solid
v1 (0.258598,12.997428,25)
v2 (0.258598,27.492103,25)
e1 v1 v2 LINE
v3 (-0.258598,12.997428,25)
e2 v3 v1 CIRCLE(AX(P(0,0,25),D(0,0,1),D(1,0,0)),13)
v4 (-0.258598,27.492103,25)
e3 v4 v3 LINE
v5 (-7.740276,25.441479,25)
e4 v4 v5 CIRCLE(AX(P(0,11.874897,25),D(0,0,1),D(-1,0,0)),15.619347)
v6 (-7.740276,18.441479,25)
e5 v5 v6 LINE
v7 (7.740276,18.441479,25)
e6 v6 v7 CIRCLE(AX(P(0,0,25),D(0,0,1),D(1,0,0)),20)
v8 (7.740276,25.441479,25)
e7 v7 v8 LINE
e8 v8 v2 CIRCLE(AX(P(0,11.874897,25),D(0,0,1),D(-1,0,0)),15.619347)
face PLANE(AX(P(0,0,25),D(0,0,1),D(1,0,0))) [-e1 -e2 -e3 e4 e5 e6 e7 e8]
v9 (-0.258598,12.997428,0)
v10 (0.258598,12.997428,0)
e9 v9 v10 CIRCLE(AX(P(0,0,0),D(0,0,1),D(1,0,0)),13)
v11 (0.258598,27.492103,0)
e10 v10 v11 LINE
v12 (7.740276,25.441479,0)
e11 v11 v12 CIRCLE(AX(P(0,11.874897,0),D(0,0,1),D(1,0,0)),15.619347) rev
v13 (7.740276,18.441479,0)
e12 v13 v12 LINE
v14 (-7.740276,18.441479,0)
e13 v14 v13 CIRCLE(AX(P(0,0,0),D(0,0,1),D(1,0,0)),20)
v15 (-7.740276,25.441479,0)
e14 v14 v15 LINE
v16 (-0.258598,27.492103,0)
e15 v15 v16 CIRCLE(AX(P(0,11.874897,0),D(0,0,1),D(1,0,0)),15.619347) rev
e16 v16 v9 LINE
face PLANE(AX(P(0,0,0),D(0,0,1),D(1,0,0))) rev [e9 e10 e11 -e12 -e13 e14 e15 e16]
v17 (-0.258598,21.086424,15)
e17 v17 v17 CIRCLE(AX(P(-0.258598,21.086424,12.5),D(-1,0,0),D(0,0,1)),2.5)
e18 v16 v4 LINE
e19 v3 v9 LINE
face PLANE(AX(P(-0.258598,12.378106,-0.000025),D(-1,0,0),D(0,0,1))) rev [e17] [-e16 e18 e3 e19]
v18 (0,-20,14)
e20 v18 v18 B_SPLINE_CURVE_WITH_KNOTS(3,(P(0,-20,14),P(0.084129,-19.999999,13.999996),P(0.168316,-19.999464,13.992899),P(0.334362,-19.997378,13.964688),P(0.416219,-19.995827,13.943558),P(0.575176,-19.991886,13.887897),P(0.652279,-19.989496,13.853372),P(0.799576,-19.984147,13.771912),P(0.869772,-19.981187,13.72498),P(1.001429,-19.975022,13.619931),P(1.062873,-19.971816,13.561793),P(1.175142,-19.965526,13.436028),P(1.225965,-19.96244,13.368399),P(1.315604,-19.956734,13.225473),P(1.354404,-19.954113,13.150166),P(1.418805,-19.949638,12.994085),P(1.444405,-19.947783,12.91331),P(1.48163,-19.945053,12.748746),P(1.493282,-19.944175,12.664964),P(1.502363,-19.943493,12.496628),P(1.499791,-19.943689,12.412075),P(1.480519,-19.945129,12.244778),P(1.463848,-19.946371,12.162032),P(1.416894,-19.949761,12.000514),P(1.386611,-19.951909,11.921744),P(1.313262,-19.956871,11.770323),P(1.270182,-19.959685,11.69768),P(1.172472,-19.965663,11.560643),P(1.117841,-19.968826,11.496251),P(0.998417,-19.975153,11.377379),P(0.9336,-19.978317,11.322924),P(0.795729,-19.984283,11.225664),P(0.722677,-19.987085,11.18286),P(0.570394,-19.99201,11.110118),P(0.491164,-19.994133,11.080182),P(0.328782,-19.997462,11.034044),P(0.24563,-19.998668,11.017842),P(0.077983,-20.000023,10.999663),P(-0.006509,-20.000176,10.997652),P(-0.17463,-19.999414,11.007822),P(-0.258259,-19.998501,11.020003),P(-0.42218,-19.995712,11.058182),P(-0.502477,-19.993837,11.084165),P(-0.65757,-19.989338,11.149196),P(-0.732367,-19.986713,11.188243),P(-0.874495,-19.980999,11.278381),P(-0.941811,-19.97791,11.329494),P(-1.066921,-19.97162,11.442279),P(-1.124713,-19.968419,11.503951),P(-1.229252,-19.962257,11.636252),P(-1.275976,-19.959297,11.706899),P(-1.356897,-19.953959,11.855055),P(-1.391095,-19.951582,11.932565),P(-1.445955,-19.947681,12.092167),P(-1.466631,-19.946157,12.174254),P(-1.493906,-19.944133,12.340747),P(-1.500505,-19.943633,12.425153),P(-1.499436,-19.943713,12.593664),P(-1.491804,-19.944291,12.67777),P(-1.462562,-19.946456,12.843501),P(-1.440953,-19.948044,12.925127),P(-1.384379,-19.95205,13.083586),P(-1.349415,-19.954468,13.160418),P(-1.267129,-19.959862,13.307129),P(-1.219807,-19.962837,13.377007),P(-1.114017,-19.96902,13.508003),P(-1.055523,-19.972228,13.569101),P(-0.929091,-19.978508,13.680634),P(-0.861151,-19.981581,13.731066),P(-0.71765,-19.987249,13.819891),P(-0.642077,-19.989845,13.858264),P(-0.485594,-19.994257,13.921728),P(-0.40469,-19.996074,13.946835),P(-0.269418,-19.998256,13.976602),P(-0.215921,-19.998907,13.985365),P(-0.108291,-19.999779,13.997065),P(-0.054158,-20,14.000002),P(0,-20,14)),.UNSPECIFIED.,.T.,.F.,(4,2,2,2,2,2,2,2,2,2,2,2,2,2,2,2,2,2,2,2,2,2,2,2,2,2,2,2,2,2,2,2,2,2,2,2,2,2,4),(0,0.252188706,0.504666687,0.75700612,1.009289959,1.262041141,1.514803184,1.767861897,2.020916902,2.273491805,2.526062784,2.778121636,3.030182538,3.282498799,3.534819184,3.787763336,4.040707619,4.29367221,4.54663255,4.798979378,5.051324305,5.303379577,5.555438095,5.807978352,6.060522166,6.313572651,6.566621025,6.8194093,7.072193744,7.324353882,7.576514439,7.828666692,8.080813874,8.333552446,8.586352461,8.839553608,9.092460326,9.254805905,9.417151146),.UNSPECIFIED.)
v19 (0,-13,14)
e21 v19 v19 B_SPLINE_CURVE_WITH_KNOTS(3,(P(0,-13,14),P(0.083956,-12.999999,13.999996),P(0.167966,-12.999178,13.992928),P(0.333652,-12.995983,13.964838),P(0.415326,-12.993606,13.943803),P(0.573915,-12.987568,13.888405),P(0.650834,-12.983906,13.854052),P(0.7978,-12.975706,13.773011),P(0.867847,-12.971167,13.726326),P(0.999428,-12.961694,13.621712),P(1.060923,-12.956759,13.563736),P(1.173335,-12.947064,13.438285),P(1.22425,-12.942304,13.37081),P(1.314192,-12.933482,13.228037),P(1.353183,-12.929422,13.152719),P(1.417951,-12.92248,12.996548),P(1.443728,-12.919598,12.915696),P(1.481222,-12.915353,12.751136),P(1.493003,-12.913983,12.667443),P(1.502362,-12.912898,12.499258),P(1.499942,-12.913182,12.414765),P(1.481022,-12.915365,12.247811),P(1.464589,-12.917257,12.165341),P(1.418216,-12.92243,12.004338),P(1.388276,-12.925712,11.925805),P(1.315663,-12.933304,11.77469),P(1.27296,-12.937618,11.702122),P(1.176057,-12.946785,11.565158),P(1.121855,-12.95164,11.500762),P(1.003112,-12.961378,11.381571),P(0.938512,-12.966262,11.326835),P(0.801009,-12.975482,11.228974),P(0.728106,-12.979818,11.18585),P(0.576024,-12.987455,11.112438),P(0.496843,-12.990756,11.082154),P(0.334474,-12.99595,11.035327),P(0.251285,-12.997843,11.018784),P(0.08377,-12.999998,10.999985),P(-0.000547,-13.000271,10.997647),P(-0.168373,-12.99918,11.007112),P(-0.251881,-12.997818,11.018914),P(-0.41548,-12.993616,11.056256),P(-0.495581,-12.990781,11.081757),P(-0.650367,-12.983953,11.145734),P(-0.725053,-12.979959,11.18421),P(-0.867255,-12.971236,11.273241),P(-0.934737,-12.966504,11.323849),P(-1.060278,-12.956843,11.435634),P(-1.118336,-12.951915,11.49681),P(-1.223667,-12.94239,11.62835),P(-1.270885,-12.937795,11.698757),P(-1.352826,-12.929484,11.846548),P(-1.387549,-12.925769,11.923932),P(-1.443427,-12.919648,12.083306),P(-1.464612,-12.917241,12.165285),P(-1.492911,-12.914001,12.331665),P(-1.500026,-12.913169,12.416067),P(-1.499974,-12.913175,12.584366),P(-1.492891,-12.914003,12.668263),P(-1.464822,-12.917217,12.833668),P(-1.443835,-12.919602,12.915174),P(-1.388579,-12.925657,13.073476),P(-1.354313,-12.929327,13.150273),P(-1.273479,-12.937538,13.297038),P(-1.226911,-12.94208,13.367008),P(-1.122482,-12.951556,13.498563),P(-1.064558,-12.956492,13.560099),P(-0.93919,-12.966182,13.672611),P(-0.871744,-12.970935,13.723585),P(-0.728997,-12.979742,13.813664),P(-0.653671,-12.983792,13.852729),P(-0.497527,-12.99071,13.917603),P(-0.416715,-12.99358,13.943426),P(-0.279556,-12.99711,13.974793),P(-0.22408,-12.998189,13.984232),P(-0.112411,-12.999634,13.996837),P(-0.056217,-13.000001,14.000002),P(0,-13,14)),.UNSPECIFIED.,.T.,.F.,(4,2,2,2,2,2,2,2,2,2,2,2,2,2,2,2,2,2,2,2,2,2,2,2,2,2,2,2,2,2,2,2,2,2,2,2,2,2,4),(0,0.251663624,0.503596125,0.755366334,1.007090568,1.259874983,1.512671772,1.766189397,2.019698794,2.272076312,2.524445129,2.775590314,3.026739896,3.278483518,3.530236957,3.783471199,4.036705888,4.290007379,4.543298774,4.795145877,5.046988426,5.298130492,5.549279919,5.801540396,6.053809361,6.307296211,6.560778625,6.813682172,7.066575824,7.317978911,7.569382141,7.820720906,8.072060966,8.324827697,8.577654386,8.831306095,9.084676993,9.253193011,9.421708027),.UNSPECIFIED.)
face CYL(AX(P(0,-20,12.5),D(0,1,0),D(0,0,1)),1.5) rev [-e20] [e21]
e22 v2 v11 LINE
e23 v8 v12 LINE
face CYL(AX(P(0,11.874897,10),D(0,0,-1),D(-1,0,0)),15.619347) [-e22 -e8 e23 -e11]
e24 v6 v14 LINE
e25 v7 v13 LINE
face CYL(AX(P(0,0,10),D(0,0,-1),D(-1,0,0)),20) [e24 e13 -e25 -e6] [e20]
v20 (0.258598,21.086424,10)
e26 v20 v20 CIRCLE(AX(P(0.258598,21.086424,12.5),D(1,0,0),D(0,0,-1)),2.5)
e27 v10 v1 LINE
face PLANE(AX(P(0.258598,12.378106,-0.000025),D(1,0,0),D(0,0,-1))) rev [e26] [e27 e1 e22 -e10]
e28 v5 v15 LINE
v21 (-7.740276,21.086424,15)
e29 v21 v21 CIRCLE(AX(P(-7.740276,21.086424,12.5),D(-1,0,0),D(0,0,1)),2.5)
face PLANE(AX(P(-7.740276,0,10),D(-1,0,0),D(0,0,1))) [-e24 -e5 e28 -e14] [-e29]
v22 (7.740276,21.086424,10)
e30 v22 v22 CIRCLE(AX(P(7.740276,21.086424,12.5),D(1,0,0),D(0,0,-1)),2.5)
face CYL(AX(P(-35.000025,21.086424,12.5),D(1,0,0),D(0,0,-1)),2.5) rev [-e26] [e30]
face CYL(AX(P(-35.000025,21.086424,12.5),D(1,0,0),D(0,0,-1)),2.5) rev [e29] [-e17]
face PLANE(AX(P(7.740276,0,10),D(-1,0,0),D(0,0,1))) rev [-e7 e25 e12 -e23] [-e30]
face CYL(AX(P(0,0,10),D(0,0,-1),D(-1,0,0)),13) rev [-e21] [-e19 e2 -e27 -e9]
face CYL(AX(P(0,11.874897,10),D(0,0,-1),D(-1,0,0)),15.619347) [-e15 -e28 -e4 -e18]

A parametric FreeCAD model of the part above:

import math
import FreeCAD as App
import Part
import Sketcher
from FreeCAD import Vector


def add_polygon(sketch, points):
    """Adds a closed chain of lines whose ends are joined by coincident constraints."""
    first, n = sketch.GeometryCount, len(points)
    for a, b in zip(points, points[1:] + points[:1]):
        sketch.addGeometry(Part.LineSegment(App.Vector(*a, 0), App.Vector(*b, 0)), False)
    for i in range(n):
        sketch.addConstraint(Sketcher.Constraint("Coincident", first + i, 2, first + (i + 1) % n, 1))

doc = App.newDocument("Part")
body = doc.addObject("PartDesign::Body", "Body")

# Sketch on XY plane
sketch1 = body.newObject("Sketcher::SketchObject", "Sketch")
sketch1.AttachmentSupport = (doc.getObject("XY_Plane"), [""])
sketch1.MapMode = "FlatFace"
sketch1.addGeometry(Part.LineSegment(Vector(-35, -7, 0), Vector(-7.7, -18.4, 0)), False)
sketch1.addGeometry(Part.ArcOfCircle(Part.Circle(Vector(0, 0, 0), Vector(0, 0, 1), 20), math.radians(-113), math.radians(-67)), False)
sketch1.addGeometry(Part.LineSegment(Vector(7.7, -18.4, 0), Vector(35, -7, 0)), False)
sketch1.addGeometry(Part.LineSegment(Vector(35, -7, 0), Vector(35, 7, 0)), False)
sketch1.addGeometry(Part.LineSegment(Vector(35, 7, 0), Vector(7.7, 18.4, 0)), False)
sketch1.addGeometry(Part.LineSegment(Vector(7.7, 18.4, 0), Vector(7.7, 25.4, 0)), False)
sketch1.addGeometry(Part.ArcOfCircle(Part.Circle(Vector(0, 11.9, 0), Vector(0, 0, 1), 15.6), math.radians(60), math.radians(120)), False)
sketch1.addGeometry(Part.LineSegment(Vector(-7.7, 25.4, 0), Vector(-7.7, 18.4, 0)), False)
sketch1.addGeometry(Part.LineSegment(Vector(-7.7, 18.4, 0), Vector(-35, 7, 0)), False)
sketch1.addGeometry(Part.LineSegment(Vector(-35, 7, 0), Vector(-35, -7, 0)), False)
sketch1.addGeometry(Part.Circle(Vector(-28, 0, 0), Vector(0, 0, 1), 3.5), False)
sketch1.addGeometry(Part.Circle(Vector(0, 0, 0), Vector(0, 0, 1), 13), False)
sketch1.addGeometry(Part.Circle(Vector(28, 0, 0), Vector(0, 0, 1), 3.5), False)
sketch1.addConstraint(Sketcher.Constraint("Tangent", 0, 2, 1, 1))
sketch1.addConstraint(Sketcher.Constraint("Tangent", 1, 2, 2, 1))
sketch1.addConstraint(Sketcher.Constraint("Coincident", 2, 2, 3, 1))
sketch1.addConstraint(Sketcher.Constraint("Coincident", 3, 2, 4, 1))
sketch1.addConstraint(Sketcher.Constraint("Coincident", 4, 2, 5, 1))
sketch1.addConstraint(Sketcher.Constraint("Coincident", 5, 2, 6, 1))
sketch1.addConstraint(Sketcher.Constraint("Coincident", 6, 2, 7, 1))
sketch1.addConstraint(Sketcher.Constraint("Coincident", 7, 2, 8, 1))
sketch1.addConstraint(Sketcher.Constraint("Coincident", 8, 2, 9, 1))
sketch1.addConstraint(Sketcher.Constraint("Coincident", 9, 2, 0, 1))
sketch1.addConstraint(Sketcher.Constraint("Vertical", 3))
sketch1.addConstraint(Sketcher.Constraint("Vertical", 5))
sketch1.addConstraint(Sketcher.Constraint("Vertical", 7))
sketch1.addConstraint(Sketcher.Constraint("Vertical", 9))
sketch1.addConstraint(Sketcher.Constraint("Coincident", 1, 3, -1, 1))
sketch1.addConstraint(Sketcher.Constraint("Coincident", 11, 3, -1, 1))
sketch1.addConstraint(Sketcher.Constraint("Equal", 10, 12))
sketch1.addConstraint(Sketcher.Constraint("Symmetric", 10, 3, 12, 3, -1, 1))
sketch1.addConstraint(Sketcher.Constraint("Symmetric", 0, 2, 4, 2, -1, 1))
sketch1.addConstraint(Sketcher.Constraint("Symmetric", 1, 2, 7, 2, -1, 1))
sketch1.addConstraint(Sketcher.Constraint("Symmetric", 2, 2, 8, 2, -1, 1))
sketch1.addConstraint(Sketcher.Constraint("Symmetric", 5, 2, 6, 2, -2))
sketch1.addConstraint(Sketcher.Constraint("PointOnObject", 10, 3, -1))
sketch1.addConstraint(Sketcher.Constraint("Parallel", 0, 4))
sketch1.addConstraint(Sketcher.Constraint("Diameter", 10, 7.0))
sketch1.addConstraint(Sketcher.Constraint("Diameter", 11, 26.0))
sketch1.addConstraint(Sketcher.Constraint("Radius", 1, 20.0))
sketch1.addConstraint(Sketcher.Constraint("DistanceY", 3, 1, 3, 2, 14.0))
sketch1.addConstraint(Sketcher.Constraint("DistanceY", 5, 1, 5, 2, 7.0))
sketch1.addConstraint(Sketcher.Constraint("DistanceX", 10, 3, -1, 1, 28.0))
sketch1.addConstraint(Sketcher.Constraint("DistanceX", -1, 1, 2, 2, 35.0))
sketch1.addConstraint(Sketcher.Constraint("Radius", 6, 15.619347))
pad1 = body.newObject("PartDesign::Pad", "Pad")
pad1.Profile = sketch1
pad1.Length = 10

# Sketch on XY plane
sketch2 = body.newObject("Sketcher::SketchObject", "Sketch001")
sketch2.AttachmentSupport = (doc.getObject("XY_Plane"), [""])
sketch2.MapMode = "FlatFace"
sketch2.AttachmentOffset = App.Placement(Vector(0, 0, 10), App.Rotation())
sketch2.addGeometry(Part.LineSegment(Vector(-8, 25, 0), Vector(-8, 18, 0)), False)
sketch2.addGeometry(Part.ArcOfCircle(Part.Circle(Vector(0, 0, 0), Vector(0, 0, 1), 20), math.radians(113), math.radians(427)), False)
sketch2.addGeometry(Part.LineSegment(Vector(8, 18, 0), Vector(8, 25, 0)), False)
sketch2.addGeometry(Part.ArcOfCircle(Part.Circle(Vector(0, 12, 0), Vector(0, 0, 1), 16), math.radians(60), math.radians(120)), False)
sketch2.addGeometry(Part.Circle(Vector(0, 0, 0), Vector(0, 0, 1), 13), False)
sketch2.addConstraint(Sketcher.Constraint("Coincident", 0, 2, 1, 1))
sketch2.addConstraint(Sketcher.Constraint("Coincident", 1, 2, 2, 1))
sketch2.addConstraint(Sketcher.Constraint("Coincident", 2, 2, 3, 1))
sketch2.addConstraint(Sketcher.Constraint("Coincident", 3, 2, 0, 1))
sketch2.addConstraint(Sketcher.Constraint("Vertical", 0))
sketch2.addConstraint(Sketcher.Constraint("Vertical", 2))
sketch2.addConstraint(Sketcher.Constraint("Coincident", 1, 3, -1, 1))
sketch2.addConstraint(Sketcher.Constraint("Coincident", 4, 3, -1, 1))
sketch2.addConstraint(Sketcher.Constraint("Symmetric", 2, 2, 3, 2, -2))
sketch2.addConstraint(Sketcher.Constraint("Diameter", 4, 26.0))
sketch2.addConstraint(Sketcher.Constraint("Radius", 1, 20.0))
sketch2.addConstraint(Sketcher.Constraint("DistanceY", 0, 2, 0, 1, 7.0))
sketch2.addConstraint(Sketcher.Constraint("Radius", 3, 15.619347))
sketch2.addConstraint(Sketcher.Constraint("DistanceY", -1, 1, 0, 2, 18.441479))
pad2 = body.newObject("PartDesign::Pad", "Pad001")
pad2.Profile = sketch2
pad2.Length = 15

# Sketch on XY plane
sketch3 = body.newObject("Sketcher::SketchObject", "Sketch002")
sketch3.AttachmentSupport = (doc.getObject("XY_Plane"), [""])
sketch3.MapMode = "FlatFace"
sketch3.AttachmentOffset = App.Placement(Vector(0, 0, 25), App.Rotation())
add_polygon(sketch3, [(-0.3, 31.1), (-0.3, 12.4), (0.3, 12.4), (0.3, 31.1)])  # lines 0-3
sketch3.addConstraint(Sketcher.Constraint("Vertical", 0))
sketch3.addConstraint(Sketcher.Constraint("Horizontal", 1))
sketch3.addConstraint(Sketcher.Constraint("Vertical", 2))
sketch3.addConstraint(Sketcher.Constraint("Horizontal", 3))
sketch3.addConstraint(Sketcher.Constraint("DistanceY", -1, 1, 2, 2, 31.104299))
sketch3.addConstraint(Sketcher.Constraint("DistanceX", 1, 1, 1, 2, 0.517195))
sketch3.addConstraint(Sketcher.Constraint("DistanceY", 0, 2, 0, 1, 18.726193))
sketch3.addConstraint(Sketcher.Constraint("DistanceX", 0, 2, -1, 1, 0.258598))
pocket1 = body.newObject("PartDesign::Pocket", "Pocket")
pocket1.Profile = sketch3
pocket1.Type = "ThroughAll"

# Sketch on YZ plane
sketch4 = body.newObject("Sketcher::SketchObject", "Sketch003")
sketch4.AttachmentSupport = (doc.getObject("YZ_Plane"), [""])
sketch4.MapMode = "FlatFace"
sketch4.AttachmentOffset = App.Placement(Vector(0, 0, 7.740276), App.Rotation())
sketch4.addGeometry(Part.Circle(Vector(21.1, 12.5, 0), Vector(0, 0, 1), 2.5), False)
sketch4.addConstraint(Sketcher.Constraint("Diameter", 0, 5.0))
sketch4.addConstraint(Sketcher.Constraint("DistanceY", -1, 1, 0, 3, 12.5))
sketch4.addConstraint(Sketcher.Constraint("DistanceX", -1, 1, 0, 3, 21.086424))
pocket2 = body.newObject("PartDesign::Pocket", "Pocket001")
pocket2.Profile = sketch4
pocket2.Type = "ThroughAll"

# Sketch on XY plane
sketch5 = body.newObject("Sketcher::SketchObject", "Sketch004")
sketch5.AttachmentSupport = (doc.getObject("XY_Plane"), [""])
sketch5.MapMode = "FlatFace"
sketch5.AttachmentOffset = App.Placement(Vector(0, 0, 10), App.Rotation())
sketch5.addGeometry(Part.LineSegment(Vector(-8, 18, 0), Vector(-35, 7, 0)), False)
sketch5.addGeometry(Part.LineSegment(Vector(-35, 7, 0), Vector(-35, -7, 0)), False)
sketch5.addGeometry(Part.LineSegment(Vector(-35, -7, 0), Vector(-8, -18, 0)), False)
sketch5.addGeometry(Part.ArcOfCircle(Part.Circle(Vector(0, 0, 0), Vector(0, 0, 1), 20), math.radians(113), math.radians(247)), False)
sketch5.addGeometry(Part.LineSegment(Vector(35, 7, 0), Vector(8, 18, 0)), False)
sketch5.addGeometry(Part.ArcOfCircle(Part.Circle(Vector(0, 0, 0), Vector(0, 0, 1), 20), math.radians(-67), math.radians(67)), False)
sketch5.addGeometry(Part.LineSegment(Vector(8, -18, 0), Vector(35, -7, 0)), False)
sketch5.addGeometry(Part.LineSegment(Vector(35, -7, 0), Vector(35, 7, 0)), False)
sketch5.addConstraint(Sketcher.Constraint("Coincident", 0, 2, 1, 1))
sketch5.addConstraint(Sketcher.Constraint("Coincident", 1, 2, 2, 1))
sketch5.addConstraint(Sketcher.Constraint("Tangent", 2, 2, 3, 2))
sketch5.addConstraint(Sketcher.Constraint("Tangent", 3, 1, 0, 1))
sketch5.addConstraint(Sketcher.Constraint("Tangent", 4, 2, 5, 2))
sketch5.addConstraint(Sketcher.Constraint("Tangent", 5, 1, 6, 1))
sketch5.addConstraint(Sketcher.Constraint("Coincident", 6, 2, 7, 1))
sketch5.addConstraint(Sketcher.Constraint("Coincident", 7, 2, 4, 1))
sketch5.addConstraint(Sketcher.Constraint("Vertical", 1))
sketch5.addConstraint(Sketcher.Constraint("Vertical", 7))
sketch5.addConstraint(Sketcher.Constraint("Coincident", 3, 3, -1, 1))
sketch5.addConstraint(Sketcher.Constraint("Coincident", 5, 3, -1, 1))
sketch5.addConstraint(Sketcher.Constraint("Equal", 3, 5))
sketch5.addConstraint(Sketcher.Constraint("Symmetric", 0, 2, 6, 2, -1, 1))
sketch5.addConstraint(Sketcher.Constraint("Parallel", 2, 4))
sketch5.addConstraint(Sketcher.Constraint("Horizontal", 3, 1, 4, 2))
sketch5.addConstraint(Sketcher.Constraint("Radius", 3, 20.0))
sketch5.addConstraint(Sketcher.Constraint("DistanceY", 1, 2, 1, 1, 14.0))
sketch5.addConstraint(Sketcher.Constraint("DistanceX", 0, 2, -1, 1, 35.0))
pocket3 = body.newObject("PartDesign::Pocket", "Pocket002")
pocket3.Profile = sketch5
pocket3.Type = "ThroughAll"

# Sketch on XZ plane
sketch6 = body.newObject("Sketcher::SketchObject", "Sketch005")
sketch6.AttachmentSupport = (doc.getObject("XZ_Plane"), [""])
sketch6.MapMode = "FlatFace"
sketch6.addGeometry(Part.Circle(Vector(0, 12.5, 0), Vector(0, 0, 1), 1.5), False)
sketch6.addConstraint(Sketcher.Constraint("PointOnObject", 0, 3, -2))
sketch6.addConstraint(Sketcher.Constraint("Diameter", 0, 3.0))
sketch6.addConstraint(Sketcher.Constraint("DistanceY", -1, 1, 0, 3, 12.5))
pocket4 = body.newObject("PartDesign::Pocket", "Pocket003")
pocket4.Profile = sketch6
pocket4.Type = "ThroughAll"
pocket4.Reversed = True

doc.recompute()
